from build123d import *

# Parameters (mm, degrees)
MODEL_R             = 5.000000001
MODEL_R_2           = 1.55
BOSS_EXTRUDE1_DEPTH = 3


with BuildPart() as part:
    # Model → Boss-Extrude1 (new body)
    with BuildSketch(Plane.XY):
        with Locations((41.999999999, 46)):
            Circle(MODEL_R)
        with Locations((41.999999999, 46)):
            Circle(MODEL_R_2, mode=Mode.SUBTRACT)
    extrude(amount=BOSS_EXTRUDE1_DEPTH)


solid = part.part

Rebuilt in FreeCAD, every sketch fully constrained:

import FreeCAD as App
import Part
import Sketcher
from FreeCAD import Vector
Q = App.Units.Quantity

doc = App.newDocument("Part")
params = doc.addObject("Spreadsheet::Sheet", "Params")
for row, (alias, value) in enumerate([
    ("sketch1_diameter", "10 mm"),
    ("sketch1_diameter2", "3.1 mm"),
    ("pad1_length", "3 mm"),
], start=1):
    params.set(f"A{row}", alias)
    params.set(f"B{row}", "=" + value)
    params.setAlias(f"B{row}", alias)

body = doc.addObject("PartDesign::Body", "Body")

# Sketch on XY plane
sketch1 = body.newObject("Sketcher::SketchObject", "Sketch")
sketch1.AttachmentSupport = (doc.getObject("XY_Plane"), [""])
sketch1.MapMode = "FlatFace"
sketch1.addGeometry(Part.Circle(Vector(42, 46, 0), Vector(0, 0, 1), 5), False)
sketch1.addGeometry(Part.Circle(Vector(42, 46, 0), Vector(0, 0, 1), 1.55), False)
sketch1.addConstraint(Sketcher.Constraint("Coincident", 1, 3, 0, 3))
sketch1.addConstraint(Sketcher.Constraint("Diameter", 0, Q("10 mm")))
sketch1.addConstraint(Sketcher.Constraint("Diameter", 1, Q("3.1 mm")))
sketch1.addConstraint(Sketcher.Constraint("DistanceX", -1, 1, 0, 3, Q("42 mm")))
sketch1.addConstraint(Sketcher.Constraint("DistanceY", -1, 1, 0, 3, Q("46 mm")))
sketch1.setExpression("Constraints[1]", "Params.sketch1_diameter")
sketch1.setExpression("Constraints[2]", "Params.sketch1_diameter2")
pad1 = body.newObject("PartDesign::Pad", "Pad")
pad1.Profile = sketch1
pad1.setExpression("Length", "Params.pad1_length")

doc.recompute()
